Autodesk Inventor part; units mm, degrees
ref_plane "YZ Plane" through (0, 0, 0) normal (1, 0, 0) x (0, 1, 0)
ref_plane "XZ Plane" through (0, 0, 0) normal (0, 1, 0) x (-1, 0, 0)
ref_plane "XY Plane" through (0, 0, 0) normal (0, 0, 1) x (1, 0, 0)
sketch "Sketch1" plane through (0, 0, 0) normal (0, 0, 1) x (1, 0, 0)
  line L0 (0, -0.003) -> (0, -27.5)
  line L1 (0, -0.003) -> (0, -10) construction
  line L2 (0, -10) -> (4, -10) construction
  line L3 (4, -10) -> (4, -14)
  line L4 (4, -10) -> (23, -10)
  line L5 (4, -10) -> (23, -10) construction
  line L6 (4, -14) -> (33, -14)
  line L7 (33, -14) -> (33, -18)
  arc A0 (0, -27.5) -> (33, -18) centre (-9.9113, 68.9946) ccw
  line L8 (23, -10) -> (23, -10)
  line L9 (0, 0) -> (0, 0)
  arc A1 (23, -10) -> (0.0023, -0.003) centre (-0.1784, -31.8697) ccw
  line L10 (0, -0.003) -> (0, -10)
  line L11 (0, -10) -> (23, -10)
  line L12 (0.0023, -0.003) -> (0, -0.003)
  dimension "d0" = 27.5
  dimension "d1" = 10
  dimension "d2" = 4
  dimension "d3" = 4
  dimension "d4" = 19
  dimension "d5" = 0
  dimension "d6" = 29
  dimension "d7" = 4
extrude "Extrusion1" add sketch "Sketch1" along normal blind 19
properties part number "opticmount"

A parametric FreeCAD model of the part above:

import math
import FreeCAD as App
import Part
import Sketcher
from FreeCAD import Vector
Q = App.Units.Quantity

doc = App.newDocument("Part")
body = doc.addObject("PartDesign::Body", "Body")

# Sketch on XY plane
sketch1 = body.newObject("Sketcher::SketchObject", "Sketch")
sketch1.AttachmentSupport = (doc.getObject("XY_Plane"), [""])
sketch1.MapMode = "FlatFace"
sketch1.addGeometry(Part.LineSegment(Vector(0.0023, -0.003, 0), Vector(0, -0.003, 0)), False)
sketch1.addGeometry(Part.LineSegment(Vector(0, -0.003, 0), Vector(0, -27.5, 0)), False)
sketch1.addGeometry(Part.ArcOfCircle(Part.Circle(Vector(-9.9113, 68.9946, 0), Vector(0, 0, 1), 97.0023), math.radians(-84), math.radians(-64)), False)
sketch1.addGeometry(Part.LineSegment(Vector(33, -18, 0), Vector(33, -14, 0)), False)
sketch1.addGeometry(Part.LineSegment(Vector(33, -14, 0), Vector(4, -14, 0)), False)
sketch1.addGeometry(Part.LineSegment(Vector(4, -14, 0), Vector(4, -10, 0)), False)
sketch1.addGeometry(Part.LineSegment(Vector(4, -10, 0), Vector(23, -10, 0)), False)
sketch1.addGeometry(Part.ArcOfCircle(Part.Circle(Vector(-0.1784, -31.8697, 0), Vector(0, 0, 1), 31.8673), math.radians(43), math.radians(90)), False)
sketch1.addConstraint(Sketcher.Constraint("Coincident", 0, 2, 1, 1))
sketch1.addConstraint(Sketcher.Constraint("Coincident", 1, 2, 2, 1))
sketch1.addConstraint(Sketcher.Constraint("Coincident", 2, 2, 3, 1))
sketch1.addConstraint(Sketcher.Constraint("Coincident", 3, 2, 4, 1))
sketch1.addConstraint(Sketcher.Constraint("Coincident", 4, 2, 5, 1))
sketch1.addConstraint(Sketcher.Constraint("Coincident", 5, 2, 6, 1))
sketch1.addConstraint(Sketcher.Constraint("Coincident", 6, 2, 7, 1))
sketch1.addConstraint(Sketcher.Constraint("Coincident", 7, 2, 0, 1))
sketch1.addConstraint(Sketcher.Constraint("Horizontal", 0))
sketch1.addConstraint(Sketcher.Constraint("Vertical", 1))
sketch1.addConstraint(Sketcher.Constraint("Vertical", 3))
sketch1.addConstraint(Sketcher.Constraint("Horizontal", 4))
sketch1.addConstraint(Sketcher.Constraint("Vertical", 5))
sketch1.addConstraint(Sketcher.Constraint("Horizontal", 6))
sketch1.addConstraint(Sketcher.Constraint("PointOnObject", 0, 2, -2))
sketch1.addConstraint(Sketcher.Constraint("Equal", 3, 5))
sketch1.addConstraint(Sketcher.Constraint("DistanceX", 4, 2, 4, 1, Q("29 mm")))
sketch1.addConstraint(Sketcher.Constraint("DistanceX", 6, 1, 6, 2, Q("19 mm")))
sketch1.addConstraint(Sketcher.Constraint("DistanceY", 3, 1, 3, 2, Q("4 mm")))
sketch1.addConstraint(Sketcher.Constraint("DistanceX", -1, 1, 4, 2, Q("4 mm")))
sketch1.addConstraint(Sketcher.Constraint("DistanceY", 5, 2, -1, 1, Q("10 mm")))
sketch1.addConstraint(Sketcher.Constraint("DistanceY", 1, 2, -1, 1, Q("27.5 mm")))
sketch1.addConstraint(Sketcher.Constraint("Radius", 2, Q("97.0023 mm")))
sketch1.addConstraint(Sketcher.Constraint("Radius", 7, Q("31.8673 mm")))
sketch1.addConstraint(Sketcher.Constraint("DistanceY", 1, 2, 1, 1, Q("27.497 mm")))
sketch1.addConstraint(Sketcher.Constraint("DistanceX", 0, 2, 0, 1, Q("0.0023 mm")))
pad1 = body.newObject("PartDesign::Pad", "Pad")
pad1.Profile = sketch1
pad1.Length = 19

doc.recompute()
